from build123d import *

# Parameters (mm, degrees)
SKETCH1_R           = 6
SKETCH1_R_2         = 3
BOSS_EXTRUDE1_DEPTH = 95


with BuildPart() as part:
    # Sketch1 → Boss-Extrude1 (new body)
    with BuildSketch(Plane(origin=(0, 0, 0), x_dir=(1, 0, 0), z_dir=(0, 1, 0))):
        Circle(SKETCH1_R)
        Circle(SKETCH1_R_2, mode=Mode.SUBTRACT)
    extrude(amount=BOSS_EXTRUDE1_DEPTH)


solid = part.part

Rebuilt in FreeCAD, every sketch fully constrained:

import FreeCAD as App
import Part
import Sketcher
from FreeCAD import Vector

doc = App.newDocument("Part")
params = doc.addObject("Spreadsheet::Sheet", "Params")
for row, (alias, value) in enumerate([
    ("sketch1_diameter", "12 mm"),
    ("sketch1_diameter2", "6 mm"),
    ("pad1_length", "95 mm"),
], start=1):
    params.set(f"A{row}", alias)
    params.set(f"B{row}", "=" + value)
    params.setAlias(f"B{row}", alias)

body = doc.addObject("PartDesign::Body", "Body")

# Sketch on XZ plane
sketch1 = body.newObject("Sketcher::SketchObject", "Sketch")
sketch1.AttachmentSupport = (doc.getObject("XZ_Plane"), [""])
sketch1.MapMode = "FlatFace"
sketch1.addGeometry([
    Part.Circle(Vector(0, 0, 0), Vector(0, 0, 1), 6),
    Part.Circle(Vector(0, 0, 0), Vector(0, 0, 1), 3),
], False)
sketch1.addConstraint([
    Sketcher.Constraint("Coincident", 0, 3, -1, 1),
    Sketcher.Constraint("Coincident", 1, 3, -1, 1),
    Sketcher.Constraint("Diameter", 0, 12.0),
    Sketcher.Constraint("Diameter", 1, 6.0),
])
sketch1.setExpression("Constraints[2]", "Params.sketch1_diameter")
sketch1.setExpression("Constraints[3]", "Params.sketch1_diameter2")
pad1 = body.newObject("PartDesign::Pad", "Pad")
pad1.Profile = sketch1
pad1.setExpression("Length", "Params.pad1_length")
pad1.Reversed = True

doc.recompute()
